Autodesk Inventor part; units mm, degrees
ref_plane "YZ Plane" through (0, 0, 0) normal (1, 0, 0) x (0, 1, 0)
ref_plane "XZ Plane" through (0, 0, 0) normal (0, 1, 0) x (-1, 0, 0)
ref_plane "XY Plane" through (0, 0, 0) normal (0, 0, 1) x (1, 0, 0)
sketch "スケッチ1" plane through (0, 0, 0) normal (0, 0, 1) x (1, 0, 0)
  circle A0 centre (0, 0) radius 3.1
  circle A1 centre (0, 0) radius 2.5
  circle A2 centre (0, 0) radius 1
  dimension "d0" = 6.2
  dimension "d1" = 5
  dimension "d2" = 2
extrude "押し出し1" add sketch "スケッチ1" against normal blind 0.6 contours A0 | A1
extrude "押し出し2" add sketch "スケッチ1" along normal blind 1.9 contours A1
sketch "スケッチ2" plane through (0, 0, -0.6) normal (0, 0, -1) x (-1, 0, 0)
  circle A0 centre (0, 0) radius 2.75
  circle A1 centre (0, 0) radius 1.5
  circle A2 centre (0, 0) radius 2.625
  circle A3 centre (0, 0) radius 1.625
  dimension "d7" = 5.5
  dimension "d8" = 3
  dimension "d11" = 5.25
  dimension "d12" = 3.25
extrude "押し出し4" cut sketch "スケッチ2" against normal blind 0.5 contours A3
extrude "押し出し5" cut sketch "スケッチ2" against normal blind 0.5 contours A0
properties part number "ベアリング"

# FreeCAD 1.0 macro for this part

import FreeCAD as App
import Part
import Sketcher

doc = App.newDocument("Part")
body = doc.addObject("PartDesign::Body", "Body")

sketch1 = doc.addObject("Sketcher::SketchObject", "Sketch")
body.addObject(sketch1)
sketch1.AttachmentSupport = (doc.XY_Plane, [""])
sketch1.MapMode = "FlatFace"
sketch1.addGeometry([
    Part.Circle(App.Vector(0, 0, 0), App.Vector(0, 0, 1), 3.1),
    Part.Circle(App.Vector(0, 0, 0), App.Vector(0, 0, 1), 1),
], False)
sketch1.addConstraint([
    Sketcher.Constraint("Coincident", 0, 3, -1, 1),
    Sketcher.Constraint("Coincident", 1, 3, -1, 1),
    Sketcher.Constraint("Diameter", 1, 2.0),
    Sketcher.Constraint("Diameter", 0, 6.2),
])
pad1 = doc.addObject("PartDesign::Pad", "Pad")
body.addObject(pad1)
pad1.Profile = sketch1
pad1.Length = 0.6
pad1.Reversed = True

sketch2 = doc.addObject("Sketcher::SketchObject", "Sketch001")
body.addObject(sketch2)
sketch2.AttachmentSupport = (doc.XY_Plane, [""])
sketch2.MapMode = "FlatFace"
sketch2.addGeometry([
    Part.Circle(App.Vector(0, 0, 0), App.Vector(0, 0, 1), 2.5),
    Part.Circle(App.Vector(0, 0, 0), App.Vector(0, 0, 1), 1),
], False)
sketch2.addConstraint([
    Sketcher.Constraint("Coincident", 0, 3, -1, 1),
    Sketcher.Constraint("Coincident", 1, 3, -1, 1),
    Sketcher.Constraint("Diameter", 0, 5.0),
    Sketcher.Constraint("Diameter", 1, 2.0),
])
pad2 = doc.addObject("PartDesign::Pad", "Pad001")
body.addObject(pad2)
pad2.Profile = sketch2
pad2.Length = 1.9

sketch3 = doc.addObject("Sketcher::SketchObject", "Sketch002")
body.addObject(sketch3)
sketch3.AttachmentSupport = (doc.XY_Plane, [""])
sketch3.MapMode = "FlatFace"
sketch3.AttachmentOffset = App.Placement(App.Vector(0, 0, -0.6), App.Rotation())
sketch3.addGeometry([
    Part.Circle(App.Vector(0, 0, 0), App.Vector(0, 0, 1), 1.6),
    Part.Circle(App.Vector(0, 0, 0), App.Vector(0, 0, 1), 1.5),
], False)
sketch3.addConstraint([
    Sketcher.Constraint("Coincident", 0, 3, -1, 1),
    Sketcher.Constraint("Coincident", 1, 3, -1, 1),
    Sketcher.Constraint("Diameter", 1, 3.0),
    Sketcher.Constraint("Diameter", 0, 3.25),
])
pocket1 = doc.addObject("PartDesign::Pocket", "Pocket")
body.addObject(pocket1)
pocket1.Profile = sketch3
pocket1.Length = 0.5
pocket1.Reversed = True

sketch4 = doc.addObject("Sketcher::SketchObject", "Sketch003")
body.addObject(sketch4)
sketch4.AttachmentSupport = (doc.XY_Plane, [""])
sketch4.MapMode = "FlatFace"
sketch4.AttachmentOffset = App.Placement(App.Vector(0, 0, -0.6), App.Rotation())
sketch4.addGeometry([
    Part.Circle(App.Vector(0, 0, 0), App.Vector(0, 0, 1), 2.8),
    Part.Circle(App.Vector(0, 0, 0), App.Vector(0, 0, 1), 2.6),
], False)
sketch4.addConstraint([
    Sketcher.Constraint("Coincident", 0, 3, -1, 1),
    Sketcher.Constraint("Coincident", 1, 3, -1, 1),
    Sketcher.Constraint("Diameter", 0, 5.5),
    Sketcher.Constraint("Diameter", 1, 5.25),
])
pocket2 = doc.addObject("PartDesign::Pocket", "Pocket001")
body.addObject(pocket2)
pocket2.Profile = sketch4
pocket2.Length = 0.5
pocket2.Reversed = True

doc.recompute()
